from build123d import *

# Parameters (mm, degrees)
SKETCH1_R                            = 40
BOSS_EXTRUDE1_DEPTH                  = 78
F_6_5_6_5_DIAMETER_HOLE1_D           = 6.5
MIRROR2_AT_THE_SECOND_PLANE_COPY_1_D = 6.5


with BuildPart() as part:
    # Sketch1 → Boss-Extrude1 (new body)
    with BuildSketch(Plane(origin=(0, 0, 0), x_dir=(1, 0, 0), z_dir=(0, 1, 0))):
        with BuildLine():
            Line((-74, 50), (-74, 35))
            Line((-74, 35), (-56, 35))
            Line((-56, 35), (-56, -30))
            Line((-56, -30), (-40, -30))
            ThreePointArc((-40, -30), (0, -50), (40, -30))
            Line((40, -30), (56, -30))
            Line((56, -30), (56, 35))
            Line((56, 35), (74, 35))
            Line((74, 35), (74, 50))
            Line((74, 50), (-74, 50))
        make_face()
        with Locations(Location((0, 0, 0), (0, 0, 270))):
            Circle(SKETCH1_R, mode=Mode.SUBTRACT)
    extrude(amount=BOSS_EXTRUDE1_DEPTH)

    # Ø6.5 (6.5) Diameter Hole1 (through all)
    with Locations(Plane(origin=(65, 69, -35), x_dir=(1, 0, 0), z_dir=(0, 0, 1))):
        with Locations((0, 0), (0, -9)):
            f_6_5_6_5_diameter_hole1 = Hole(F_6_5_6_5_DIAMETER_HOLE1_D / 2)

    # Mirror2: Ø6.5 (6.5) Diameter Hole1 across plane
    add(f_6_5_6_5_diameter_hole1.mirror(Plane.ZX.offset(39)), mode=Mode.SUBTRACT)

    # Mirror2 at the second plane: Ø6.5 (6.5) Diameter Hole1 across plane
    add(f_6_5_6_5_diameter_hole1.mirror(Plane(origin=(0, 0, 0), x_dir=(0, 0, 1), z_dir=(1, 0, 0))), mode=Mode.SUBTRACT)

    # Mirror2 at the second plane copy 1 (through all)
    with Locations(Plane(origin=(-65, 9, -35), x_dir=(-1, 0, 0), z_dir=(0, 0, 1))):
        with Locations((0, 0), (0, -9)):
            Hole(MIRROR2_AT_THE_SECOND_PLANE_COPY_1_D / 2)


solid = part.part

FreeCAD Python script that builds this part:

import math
import FreeCAD as App
import Part
import Sketcher

doc = App.newDocument("Part")
body = doc.addObject("PartDesign::Body", "Body")

# Sketch on XZ plane
sketch1 = body.newObject("Sketcher::SketchObject", "Sketch")
sketch1.AttachmentSupport = (doc.getObject("XZ_Plane"), [""])
sketch1.MapMode = "FlatFace"
sketch1.addGeometry([
    Part.LineSegment(App.Vector(-74, -50, 0), App.Vector(-74, -35, 0)),  # 0
    Part.LineSegment(App.Vector(-74, -35, 0), App.Vector(-56, -35, 0)),  # 1
    Part.LineSegment(App.Vector(-56, -35, 0), App.Vector(-56, 30, 0)),  # 2
    Part.LineSegment(App.Vector(-56, 30, 0), App.Vector(-40, 30, 0)),  # 3
    Part.ArcOfCircle(Part.Circle(App.Vector(0, 0, 0), App.Vector(0, 0, 1), 50), math.radians(37), math.radians(143)),  # 4
    Part.LineSegment(App.Vector(40, 30, 0), App.Vector(56, 30, 0)),  # 5
    Part.LineSegment(App.Vector(56, 30, 0), App.Vector(56, -35, 0)),  # 6
    Part.LineSegment(App.Vector(56, -35, 0), App.Vector(74, -35, 0)),  # 7
    Part.LineSegment(App.Vector(74, -35, 0), App.Vector(74, -50, 0)),  # 8
    Part.LineSegment(App.Vector(74, -50, 0), App.Vector(-74, -50, 0)),  # 9
    Part.Circle(App.Vector(0, 0, 0), App.Vector(0, 0, 1), 40),  # 10
], False)
sketch1.addConstraint([
    Sketcher.Constraint("Coincident", 0, 2, 1, 1),
    Sketcher.Constraint("Coincident", 1, 2, 2, 1),
    Sketcher.Constraint("Coincident", 2, 2, 3, 1),
    Sketcher.Constraint("Coincident", 3, 2, 4, 2),
    Sketcher.Constraint("Coincident", 4, 1, 5, 1),
    Sketcher.Constraint("Coincident", 5, 2, 6, 1),
    Sketcher.Constraint("Coincident", 6, 2, 7, 1),
    Sketcher.Constraint("Coincident", 7, 2, 8, 1),
    Sketcher.Constraint("Coincident", 8, 2, 9, 1),
    Sketcher.Constraint("Coincident", 9, 2, 0, 1),
    Sketcher.Constraint("Vertical", 0),
    Sketcher.Constraint("Horizontal", 1),
    Sketcher.Constraint("Vertical", 2),
    Sketcher.Constraint("Horizontal", 3),
    Sketcher.Constraint("Horizontal", 5),
    Sketcher.Constraint("Vertical", 6),
    Sketcher.Constraint("Horizontal", 7),
    Sketcher.Constraint("Vertical", 8),
    Sketcher.Constraint("Horizontal", 9),
    Sketcher.Constraint("Coincident", 4, 3, -1, 1),
    Sketcher.Constraint("Coincident", 10, 3, -1, 1),
    Sketcher.Constraint("Symmetric", 2, 2, 5, 2, -2),
    Sketcher.Constraint("Symmetric", 0, 2, 7, 2, -2),
    Sketcher.Constraint("Diameter", 10, 80.0),
    Sketcher.Constraint("Radius", 4, 50.0),
    Sketcher.Constraint("DistanceX", 1, 1, 1, 2, 18.0),
    Sketcher.Constraint("DistanceX", 3, 1, 3, 2, 16.0),
    Sketcher.Constraint("DistanceX", 9, 2, 9, 1, 148.0),
    Sketcher.Constraint("DistanceY", 0, 1, 0, 2, 15.0),
    Sketcher.Constraint("DistanceY", 2, 1, 2, 2, 65.0),
])
pad1 = body.newObject("PartDesign::Pad", "Pad")
pad1.Profile = sketch1
pad1.Length = 78
pad1.Reversed = True

# Sketch on XY plane
sketch2 = body.newObject("Sketcher::SketchObject", "Sketch001")
sketch2.AttachmentSupport = (doc.getObject("XY_Plane"), [""])
sketch2.MapMode = "FlatFace"
sketch2.AttachmentOffset = App.Placement(App.Vector(0, 0, -35), App.Rotation())
sketch2.addGeometry([
    Part.Circle(App.Vector(65, 69, 0), App.Vector(0, 0, 1), 3.2),
    Part.Circle(App.Vector(65, 60, 0), App.Vector(0, 0, 1), 3.2),
], False)
sketch2.addConstraint([
    Sketcher.Constraint("Equal", 0, 1),
    Sketcher.Constraint("Vertical", 0, 3, 1, 3),
    Sketcher.Constraint("Diameter", 0, 6.5),
    Sketcher.Constraint("DistanceX", -1, 1, 0, 3, 65.0),
    Sketcher.Constraint("DistanceY", -1, 1, 0, 3, 69.0),
    Sketcher.Constraint("DistanceY", -1, 1, 1, 3, 60.0),
])
doc.recompute()
hole = body.newObject("PartDesign::Hole", "Hole")
hole.Profile = sketch2
hole.ThreadType = "None"
hole.Diameter = 6.5
hole.DepthType = "ThroughAll"
doc.recompute()

datumplane = body.newObject("PartDesign::Plane", "DatumPlane")
datumplane.AttachmentSupport = (doc.getObject("XZ_Plane"), [""])
datumplane.MapMode = "FlatFace"
datumplane.AttachmentOffset = App.Placement(App.Vector(0, 0, -39), App.Rotation())
mirrored = body.newObject("PartDesign::Mirrored", "Mirrored")
mirrored.Originals = [hole]
mirrored.MirrorPlane = (datumplane, [""])
body.Tip = mirrored
doc.recompute()

mirrored2 = body.newObject("PartDesign::Mirrored", "Mirrored001")
mirrored2.Originals = [hole]
mirrored2.MirrorPlane = (doc.getObject("YZ_Plane"), [""])
body.Tip = mirrored2

# Sketch on XY plane
sketch3 = body.newObject("Sketcher::SketchObject", "Sketch002")
sketch3.AttachmentSupport = (doc.getObject("XY_Plane"), [""])
sketch3.MapMode = "FlatFace"
sketch3.AttachmentOffset = App.Placement(App.Vector(0, 0, -35), App.Rotation())
sketch3.addGeometry([
    Part.Circle(App.Vector(-65, 9, 0), App.Vector(0, 0, 1), 3.2),
    Part.Circle(App.Vector(-65, 18, 0), App.Vector(0, 0, 1), 3.2),
], False)
sketch3.addConstraint([
    Sketcher.Constraint("Equal", 0, 1),
    Sketcher.Constraint("Vertical", 0, 3, 1, 3),
    Sketcher.Constraint("Diameter", 0, 6.5),
    Sketcher.Constraint("DistanceX", 0, 3, -1, 1, 65.0),
    Sketcher.Constraint("DistanceY", -1, 1, 0, 3, 9.0),
    Sketcher.Constraint("DistanceY", -1, 1, 1, 3, 18.0),
])
doc.recompute()
hole2 = body.newObject("PartDesign::Hole", "Hole001")
hole2.Profile = sketch3
hole2.ThreadType = "None"
hole2.Diameter = 6.5
hole2.DepthType = "ThroughAll"

doc.recompute()
